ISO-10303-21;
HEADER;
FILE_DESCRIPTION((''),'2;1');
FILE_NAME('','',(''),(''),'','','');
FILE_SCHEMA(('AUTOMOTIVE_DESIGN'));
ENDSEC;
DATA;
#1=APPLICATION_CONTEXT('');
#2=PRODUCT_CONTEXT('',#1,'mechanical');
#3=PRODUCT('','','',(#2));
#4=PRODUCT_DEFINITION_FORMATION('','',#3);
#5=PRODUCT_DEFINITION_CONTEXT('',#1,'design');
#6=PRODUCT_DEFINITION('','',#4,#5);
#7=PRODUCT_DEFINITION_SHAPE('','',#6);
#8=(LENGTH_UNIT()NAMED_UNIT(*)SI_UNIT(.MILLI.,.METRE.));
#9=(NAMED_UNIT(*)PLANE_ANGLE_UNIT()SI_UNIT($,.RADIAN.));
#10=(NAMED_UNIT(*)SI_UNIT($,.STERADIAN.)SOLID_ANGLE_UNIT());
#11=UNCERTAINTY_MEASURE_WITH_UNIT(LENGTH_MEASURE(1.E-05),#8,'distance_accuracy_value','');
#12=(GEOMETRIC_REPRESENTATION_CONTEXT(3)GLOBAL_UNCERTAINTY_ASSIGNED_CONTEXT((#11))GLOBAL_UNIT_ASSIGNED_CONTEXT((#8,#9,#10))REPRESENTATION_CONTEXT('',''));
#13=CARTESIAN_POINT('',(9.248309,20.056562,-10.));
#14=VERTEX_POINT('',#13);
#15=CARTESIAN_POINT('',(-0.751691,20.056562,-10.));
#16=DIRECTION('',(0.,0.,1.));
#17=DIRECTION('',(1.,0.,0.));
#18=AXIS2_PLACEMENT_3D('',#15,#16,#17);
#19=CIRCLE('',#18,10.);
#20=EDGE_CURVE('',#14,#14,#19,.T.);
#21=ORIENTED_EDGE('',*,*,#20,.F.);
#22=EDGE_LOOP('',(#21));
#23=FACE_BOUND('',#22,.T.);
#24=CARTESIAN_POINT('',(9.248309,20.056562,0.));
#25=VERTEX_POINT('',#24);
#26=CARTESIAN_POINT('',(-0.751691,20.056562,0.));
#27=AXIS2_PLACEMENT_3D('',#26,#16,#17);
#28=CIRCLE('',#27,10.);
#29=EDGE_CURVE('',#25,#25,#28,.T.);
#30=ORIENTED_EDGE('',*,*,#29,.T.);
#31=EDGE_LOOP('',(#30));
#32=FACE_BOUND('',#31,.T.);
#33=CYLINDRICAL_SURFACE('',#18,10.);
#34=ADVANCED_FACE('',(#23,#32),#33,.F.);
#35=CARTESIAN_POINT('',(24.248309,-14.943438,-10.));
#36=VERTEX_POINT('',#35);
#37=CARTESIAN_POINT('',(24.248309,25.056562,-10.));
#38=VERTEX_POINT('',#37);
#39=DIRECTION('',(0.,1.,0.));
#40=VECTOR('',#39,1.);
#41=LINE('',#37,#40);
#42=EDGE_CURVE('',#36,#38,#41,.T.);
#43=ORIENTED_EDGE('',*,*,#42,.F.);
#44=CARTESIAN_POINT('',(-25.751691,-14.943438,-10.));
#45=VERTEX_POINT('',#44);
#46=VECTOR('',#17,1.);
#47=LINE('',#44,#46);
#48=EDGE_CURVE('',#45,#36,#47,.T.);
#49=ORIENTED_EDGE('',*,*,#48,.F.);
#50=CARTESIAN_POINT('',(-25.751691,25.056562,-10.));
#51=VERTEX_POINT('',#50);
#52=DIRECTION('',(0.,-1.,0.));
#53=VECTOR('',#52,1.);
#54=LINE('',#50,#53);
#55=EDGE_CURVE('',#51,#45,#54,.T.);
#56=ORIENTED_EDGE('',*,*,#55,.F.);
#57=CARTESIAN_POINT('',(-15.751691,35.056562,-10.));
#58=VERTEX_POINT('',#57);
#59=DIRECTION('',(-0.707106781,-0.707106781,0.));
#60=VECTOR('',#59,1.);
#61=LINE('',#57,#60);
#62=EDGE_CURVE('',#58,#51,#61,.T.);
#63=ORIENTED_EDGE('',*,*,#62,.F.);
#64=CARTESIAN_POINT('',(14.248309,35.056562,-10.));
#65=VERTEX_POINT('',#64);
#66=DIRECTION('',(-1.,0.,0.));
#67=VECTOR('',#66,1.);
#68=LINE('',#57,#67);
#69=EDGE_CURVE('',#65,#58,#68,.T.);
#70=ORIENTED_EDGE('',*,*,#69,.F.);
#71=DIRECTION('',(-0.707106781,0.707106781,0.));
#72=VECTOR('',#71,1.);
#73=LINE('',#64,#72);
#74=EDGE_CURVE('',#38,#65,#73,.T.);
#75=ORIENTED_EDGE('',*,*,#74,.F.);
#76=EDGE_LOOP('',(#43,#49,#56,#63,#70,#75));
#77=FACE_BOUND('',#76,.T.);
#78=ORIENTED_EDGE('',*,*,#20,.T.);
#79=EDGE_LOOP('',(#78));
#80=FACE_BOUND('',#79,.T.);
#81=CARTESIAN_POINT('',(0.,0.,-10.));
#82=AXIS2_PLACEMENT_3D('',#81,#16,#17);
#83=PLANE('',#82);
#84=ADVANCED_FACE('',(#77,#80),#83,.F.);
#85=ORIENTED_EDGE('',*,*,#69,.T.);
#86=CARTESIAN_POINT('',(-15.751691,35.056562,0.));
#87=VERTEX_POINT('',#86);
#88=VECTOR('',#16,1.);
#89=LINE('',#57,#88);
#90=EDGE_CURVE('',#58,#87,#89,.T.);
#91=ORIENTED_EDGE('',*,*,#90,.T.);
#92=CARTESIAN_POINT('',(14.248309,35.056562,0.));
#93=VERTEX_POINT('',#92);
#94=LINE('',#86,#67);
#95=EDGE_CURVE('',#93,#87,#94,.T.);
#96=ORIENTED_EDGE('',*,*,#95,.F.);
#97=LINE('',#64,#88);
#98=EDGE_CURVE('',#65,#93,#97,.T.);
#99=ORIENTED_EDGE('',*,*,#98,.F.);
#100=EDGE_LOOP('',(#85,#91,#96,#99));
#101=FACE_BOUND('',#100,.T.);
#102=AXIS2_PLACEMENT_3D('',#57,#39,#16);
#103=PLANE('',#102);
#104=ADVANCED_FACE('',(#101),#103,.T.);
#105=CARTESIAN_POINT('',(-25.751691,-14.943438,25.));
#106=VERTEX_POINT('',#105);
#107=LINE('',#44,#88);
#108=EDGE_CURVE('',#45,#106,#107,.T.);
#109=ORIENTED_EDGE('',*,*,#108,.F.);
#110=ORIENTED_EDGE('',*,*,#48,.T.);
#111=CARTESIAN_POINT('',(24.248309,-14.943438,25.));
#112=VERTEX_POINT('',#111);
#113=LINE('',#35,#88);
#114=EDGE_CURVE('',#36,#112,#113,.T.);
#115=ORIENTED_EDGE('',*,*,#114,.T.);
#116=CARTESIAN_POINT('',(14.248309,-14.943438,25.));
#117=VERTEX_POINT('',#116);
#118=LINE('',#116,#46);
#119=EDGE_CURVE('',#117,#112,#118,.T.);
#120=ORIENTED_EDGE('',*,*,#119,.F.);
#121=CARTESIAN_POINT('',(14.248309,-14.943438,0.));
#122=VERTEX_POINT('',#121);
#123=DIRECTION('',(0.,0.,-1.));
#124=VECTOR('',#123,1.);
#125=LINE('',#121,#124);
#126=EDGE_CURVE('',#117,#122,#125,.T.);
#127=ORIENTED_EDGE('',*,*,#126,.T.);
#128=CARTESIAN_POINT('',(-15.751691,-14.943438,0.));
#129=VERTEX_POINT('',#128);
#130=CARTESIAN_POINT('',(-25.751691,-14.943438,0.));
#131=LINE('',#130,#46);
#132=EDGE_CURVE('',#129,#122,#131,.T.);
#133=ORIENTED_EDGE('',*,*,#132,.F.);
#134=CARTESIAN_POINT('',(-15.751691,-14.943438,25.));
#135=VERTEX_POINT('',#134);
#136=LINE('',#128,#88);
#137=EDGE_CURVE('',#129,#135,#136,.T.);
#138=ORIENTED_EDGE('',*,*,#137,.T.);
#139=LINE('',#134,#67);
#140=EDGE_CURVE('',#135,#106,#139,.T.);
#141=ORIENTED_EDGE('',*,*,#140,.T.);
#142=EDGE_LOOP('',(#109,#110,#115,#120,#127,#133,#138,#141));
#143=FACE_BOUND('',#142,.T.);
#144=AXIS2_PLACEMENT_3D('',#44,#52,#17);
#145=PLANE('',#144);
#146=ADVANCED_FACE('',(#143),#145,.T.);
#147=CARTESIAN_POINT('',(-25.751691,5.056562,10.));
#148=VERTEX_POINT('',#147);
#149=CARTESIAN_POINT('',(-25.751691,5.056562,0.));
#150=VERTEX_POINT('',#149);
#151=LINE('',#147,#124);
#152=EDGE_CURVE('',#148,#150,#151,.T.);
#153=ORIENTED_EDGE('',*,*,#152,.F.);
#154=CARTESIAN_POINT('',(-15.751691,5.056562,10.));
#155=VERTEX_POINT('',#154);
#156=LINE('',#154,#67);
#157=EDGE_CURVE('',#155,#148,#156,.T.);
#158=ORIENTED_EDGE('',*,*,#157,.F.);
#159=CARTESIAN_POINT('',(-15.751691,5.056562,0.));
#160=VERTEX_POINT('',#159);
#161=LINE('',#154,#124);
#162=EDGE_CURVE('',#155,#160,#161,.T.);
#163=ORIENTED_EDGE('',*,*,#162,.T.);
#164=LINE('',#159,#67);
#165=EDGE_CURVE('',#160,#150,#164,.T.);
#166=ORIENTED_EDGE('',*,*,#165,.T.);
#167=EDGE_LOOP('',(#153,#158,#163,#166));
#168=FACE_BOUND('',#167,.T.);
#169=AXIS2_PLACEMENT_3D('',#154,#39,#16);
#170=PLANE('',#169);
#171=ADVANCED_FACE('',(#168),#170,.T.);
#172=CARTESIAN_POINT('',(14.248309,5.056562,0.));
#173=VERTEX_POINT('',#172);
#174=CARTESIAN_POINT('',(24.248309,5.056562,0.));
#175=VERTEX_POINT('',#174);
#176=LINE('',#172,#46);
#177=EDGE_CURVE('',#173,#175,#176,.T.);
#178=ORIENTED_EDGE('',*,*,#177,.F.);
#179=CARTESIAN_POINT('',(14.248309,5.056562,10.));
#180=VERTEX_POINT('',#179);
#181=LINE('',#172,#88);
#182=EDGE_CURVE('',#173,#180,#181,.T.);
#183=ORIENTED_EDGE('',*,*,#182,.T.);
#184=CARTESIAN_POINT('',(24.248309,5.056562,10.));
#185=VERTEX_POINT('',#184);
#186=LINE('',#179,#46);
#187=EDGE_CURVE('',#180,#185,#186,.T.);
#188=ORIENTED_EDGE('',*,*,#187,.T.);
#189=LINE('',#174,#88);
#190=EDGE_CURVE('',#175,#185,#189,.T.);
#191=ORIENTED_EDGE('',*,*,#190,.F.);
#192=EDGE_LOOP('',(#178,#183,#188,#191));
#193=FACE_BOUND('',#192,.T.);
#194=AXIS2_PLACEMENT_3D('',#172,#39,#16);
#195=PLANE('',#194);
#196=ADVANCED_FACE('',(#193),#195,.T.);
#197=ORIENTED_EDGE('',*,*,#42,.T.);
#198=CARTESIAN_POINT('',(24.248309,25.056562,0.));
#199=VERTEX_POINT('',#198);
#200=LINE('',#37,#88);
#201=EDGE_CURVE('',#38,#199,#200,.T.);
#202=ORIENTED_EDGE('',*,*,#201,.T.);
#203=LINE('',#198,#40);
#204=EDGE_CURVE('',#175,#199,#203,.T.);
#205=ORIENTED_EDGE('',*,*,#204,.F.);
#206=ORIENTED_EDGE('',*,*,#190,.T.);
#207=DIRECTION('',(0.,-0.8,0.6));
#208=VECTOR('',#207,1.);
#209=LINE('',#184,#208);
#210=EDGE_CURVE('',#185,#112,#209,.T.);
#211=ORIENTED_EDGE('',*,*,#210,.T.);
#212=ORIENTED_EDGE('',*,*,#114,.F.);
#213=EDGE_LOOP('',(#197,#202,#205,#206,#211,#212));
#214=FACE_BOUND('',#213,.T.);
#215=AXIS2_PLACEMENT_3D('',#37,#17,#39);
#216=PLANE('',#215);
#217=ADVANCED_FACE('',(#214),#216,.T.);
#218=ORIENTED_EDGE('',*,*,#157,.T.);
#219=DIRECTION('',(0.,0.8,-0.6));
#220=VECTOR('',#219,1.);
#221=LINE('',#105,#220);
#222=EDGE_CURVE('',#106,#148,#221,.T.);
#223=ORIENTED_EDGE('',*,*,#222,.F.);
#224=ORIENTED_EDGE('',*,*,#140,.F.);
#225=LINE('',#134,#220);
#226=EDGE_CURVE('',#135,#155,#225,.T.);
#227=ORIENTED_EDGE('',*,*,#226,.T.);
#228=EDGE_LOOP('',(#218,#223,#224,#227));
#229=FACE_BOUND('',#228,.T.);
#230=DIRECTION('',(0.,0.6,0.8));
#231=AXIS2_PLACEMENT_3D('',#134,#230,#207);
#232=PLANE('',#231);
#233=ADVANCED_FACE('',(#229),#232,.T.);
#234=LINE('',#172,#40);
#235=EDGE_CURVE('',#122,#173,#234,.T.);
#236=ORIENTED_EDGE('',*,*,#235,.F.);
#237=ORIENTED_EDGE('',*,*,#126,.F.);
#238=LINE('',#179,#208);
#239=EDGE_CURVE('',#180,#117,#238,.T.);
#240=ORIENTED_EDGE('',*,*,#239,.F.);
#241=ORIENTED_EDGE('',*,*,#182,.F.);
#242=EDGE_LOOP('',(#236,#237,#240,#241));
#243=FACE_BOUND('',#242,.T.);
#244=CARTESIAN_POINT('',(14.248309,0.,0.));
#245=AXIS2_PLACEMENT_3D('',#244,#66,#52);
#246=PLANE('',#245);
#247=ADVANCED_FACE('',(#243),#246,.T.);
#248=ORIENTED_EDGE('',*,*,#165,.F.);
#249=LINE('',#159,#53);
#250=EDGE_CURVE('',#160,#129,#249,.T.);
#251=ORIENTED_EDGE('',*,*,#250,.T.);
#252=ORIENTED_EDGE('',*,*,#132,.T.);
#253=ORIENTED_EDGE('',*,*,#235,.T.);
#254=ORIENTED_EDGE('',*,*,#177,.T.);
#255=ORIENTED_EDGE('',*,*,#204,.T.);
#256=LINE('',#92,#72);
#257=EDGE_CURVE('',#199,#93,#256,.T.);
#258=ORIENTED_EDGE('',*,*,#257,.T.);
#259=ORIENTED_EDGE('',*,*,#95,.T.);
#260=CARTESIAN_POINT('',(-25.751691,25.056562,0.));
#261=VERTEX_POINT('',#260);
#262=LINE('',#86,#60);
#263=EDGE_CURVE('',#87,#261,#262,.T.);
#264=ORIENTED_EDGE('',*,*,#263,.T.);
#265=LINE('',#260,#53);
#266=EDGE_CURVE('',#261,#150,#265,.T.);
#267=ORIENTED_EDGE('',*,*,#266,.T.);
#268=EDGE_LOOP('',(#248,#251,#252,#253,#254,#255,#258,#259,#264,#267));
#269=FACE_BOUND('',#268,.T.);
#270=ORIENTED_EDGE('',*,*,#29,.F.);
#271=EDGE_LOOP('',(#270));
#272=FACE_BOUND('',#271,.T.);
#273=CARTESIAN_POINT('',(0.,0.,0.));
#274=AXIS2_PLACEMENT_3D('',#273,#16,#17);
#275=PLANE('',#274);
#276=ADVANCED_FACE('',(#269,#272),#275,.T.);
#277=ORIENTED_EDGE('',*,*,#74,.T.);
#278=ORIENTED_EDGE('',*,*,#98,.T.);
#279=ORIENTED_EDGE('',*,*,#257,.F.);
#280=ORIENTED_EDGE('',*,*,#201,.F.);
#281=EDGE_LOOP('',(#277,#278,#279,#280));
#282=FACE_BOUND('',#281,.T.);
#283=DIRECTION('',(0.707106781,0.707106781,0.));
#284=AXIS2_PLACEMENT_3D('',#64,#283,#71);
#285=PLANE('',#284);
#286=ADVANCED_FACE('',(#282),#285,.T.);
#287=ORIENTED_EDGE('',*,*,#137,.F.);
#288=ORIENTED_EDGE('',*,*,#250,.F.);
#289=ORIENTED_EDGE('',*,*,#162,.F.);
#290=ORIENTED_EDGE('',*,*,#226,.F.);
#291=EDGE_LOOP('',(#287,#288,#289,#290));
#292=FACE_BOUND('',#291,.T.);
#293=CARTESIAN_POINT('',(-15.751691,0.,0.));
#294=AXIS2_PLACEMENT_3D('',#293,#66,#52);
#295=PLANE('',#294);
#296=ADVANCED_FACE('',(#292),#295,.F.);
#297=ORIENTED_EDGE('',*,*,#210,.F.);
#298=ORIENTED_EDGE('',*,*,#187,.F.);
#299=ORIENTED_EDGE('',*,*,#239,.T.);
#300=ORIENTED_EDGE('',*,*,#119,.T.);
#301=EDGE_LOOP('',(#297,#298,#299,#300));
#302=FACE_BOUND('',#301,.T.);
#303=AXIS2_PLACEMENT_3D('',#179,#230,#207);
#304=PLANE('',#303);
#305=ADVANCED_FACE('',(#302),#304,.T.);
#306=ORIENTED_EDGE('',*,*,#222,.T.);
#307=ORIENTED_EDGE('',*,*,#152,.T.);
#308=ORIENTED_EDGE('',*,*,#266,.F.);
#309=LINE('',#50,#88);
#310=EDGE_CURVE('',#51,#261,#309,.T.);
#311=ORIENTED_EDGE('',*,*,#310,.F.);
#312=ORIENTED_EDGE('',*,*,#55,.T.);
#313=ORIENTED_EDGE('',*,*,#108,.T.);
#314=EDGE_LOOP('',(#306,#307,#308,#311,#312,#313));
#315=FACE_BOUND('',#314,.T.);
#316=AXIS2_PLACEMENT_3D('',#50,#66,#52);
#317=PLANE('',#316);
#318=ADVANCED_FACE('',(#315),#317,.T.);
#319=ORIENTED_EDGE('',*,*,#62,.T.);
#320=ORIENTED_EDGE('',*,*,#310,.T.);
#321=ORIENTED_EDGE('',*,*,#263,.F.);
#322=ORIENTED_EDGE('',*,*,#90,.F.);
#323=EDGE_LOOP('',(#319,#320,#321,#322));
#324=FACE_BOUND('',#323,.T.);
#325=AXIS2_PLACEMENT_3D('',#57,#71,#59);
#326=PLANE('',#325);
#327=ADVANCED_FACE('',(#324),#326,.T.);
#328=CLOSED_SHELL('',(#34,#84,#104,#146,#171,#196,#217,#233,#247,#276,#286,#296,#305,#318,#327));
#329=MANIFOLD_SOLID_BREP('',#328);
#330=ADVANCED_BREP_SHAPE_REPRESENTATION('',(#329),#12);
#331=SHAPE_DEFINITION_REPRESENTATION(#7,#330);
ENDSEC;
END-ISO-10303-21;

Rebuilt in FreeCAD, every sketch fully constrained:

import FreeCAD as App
import Part
import Sketcher
Q = App.Units.Quantity

doc = App.newDocument("Part")
body = doc.addObject("PartDesign::Body", "Body")

# Sketch on XY plane
sketch1 = body.newObject("Sketcher::SketchObject", "Sketch")
sketch1.AttachmentSupport = (doc.getObject("XY_Plane"), [""])
sketch1.MapMode = "FlatFace"
sketch1.addGeometry(Part.LineSegment(App.Vector(14, 35, 0), App.Vector(-16, 35, 0)), False)
sketch1.addGeometry(Part.LineSegment(App.Vector(-16, 35, 0), App.Vector(-26, 25, 0)), False)
sketch1.addGeometry(Part.LineSegment(App.Vector(-26, 25, 0), App.Vector(-26, -15, 0)), False)
sketch1.addGeometry(Part.LineSegment(App.Vector(-26, -15, 0), App.Vector(24, -15, 0)), False)
sketch1.addGeometry(Part.LineSegment(App.Vector(24, -15, 0), App.Vector(24, 25, 0)), False)
sketch1.addGeometry(Part.LineSegment(App.Vector(24, 25, 0), App.Vector(14, 35, 0)), False)
sketch1.addConstraint(Sketcher.Constraint("Coincident", 0, 2, 1, 1))
sketch1.addConstraint(Sketcher.Constraint("Coincident", 1, 2, 2, 1))
sketch1.addConstraint(Sketcher.Constraint("Coincident", 2, 2, 3, 1))
sketch1.addConstraint(Sketcher.Constraint("Coincident", 3, 2, 4, 1))
sketch1.addConstraint(Sketcher.Constraint("Coincident", 4, 2, 5, 1))
sketch1.addConstraint(Sketcher.Constraint("Coincident", 5, 2, 0, 1))
sketch1.addConstraint(Sketcher.Constraint("Horizontal", 0))
sketch1.addConstraint(Sketcher.Constraint("Vertical", 2))
sketch1.addConstraint(Sketcher.Constraint("Horizontal", 3))
sketch1.addConstraint(Sketcher.Constraint("Vertical", 4))
sketch1.addConstraint(Sketcher.Constraint("Perpendicular", 1, 5))
sketch1.addConstraint(Sketcher.Constraint("Horizontal", 1, 2, 4, 2))
sketch1.addConstraint(Sketcher.Constraint("Equal", 1, 5))
sketch1.addConstraint(Sketcher.Constraint("DistanceX", 0, 2, 0, 1, Q("30 mm")))
sketch1.addConstraint(Sketcher.Constraint("DistanceX", 3, 1, 3, 2, Q("50 mm")))
sketch1.addConstraint(Sketcher.Constraint("DistanceY", 2, 2, 2, 1, Q("40 mm")))
sketch1.addConstraint(Sketcher.Constraint("DistanceX", 0, 2, -1, 1, Q("15.751691 mm")))
sketch1.addConstraint(Sketcher.Constraint("DistanceY", -1, 1, 0, 2, Q("35.056562 mm")))
pad1 = body.newObject("PartDesign::Pad", "Pad")
pad1.Profile = sketch1
pad1.Length = 10
pad1.Reversed = True

# Sketch on XY plane
sketch2 = body.newObject("Sketcher::SketchObject", "Sketch001")
sketch2.AttachmentSupport = (doc.getObject("XY_Plane"), [""])
sketch2.MapMode = "FlatFace"
sketch2.addGeometry(Part.Circle(App.Vector(-1, 20, 0), App.Vector(0, 0, 1), 10), False)
sketch2.addConstraint(Sketcher.Constraint("Diameter", 0, Q("20 mm")))
sketch2.addConstraint(Sketcher.Constraint("DistanceX", 0, 3, -1, 1, Q("0.751691 mm")))
sketch2.addConstraint(Sketcher.Constraint("DistanceY", -1, 1, 0, 3, Q("20.056562 mm")))
pocket1 = body.newObject("PartDesign::Pocket", "Pocket")
pocket1.Profile = sketch2
pocket1.Length = 10

# Sketch on YZ plane
sketch3 = body.newObject("Sketcher::SketchObject", "Sketch002")
sketch3.AttachmentSupport = (doc.getObject("YZ_Plane"), [""])
sketch3.MapMode = "FlatFace"
sketch3.AttachmentOffset = App.Placement(App.Vector(0, 0, 24.248309), App.Rotation())
sketch3.addGeometry(Part.LineSegment(App.Vector(-15, 25, 0), App.Vector(-15, 0, 0)), False)
sketch3.addGeometry(Part.LineSegment(App.Vector(-15, 0, 0), App.Vector(5, 0, 0)), False)
sketch3.addGeometry(Part.LineSegment(App.Vector(5, 0, 0), App.Vector(5, 10, 0)), False)
sketch3.addGeometry(Part.LineSegment(App.Vector(5, 10, 0), App.Vector(-15, 25, 0)), False)
sketch3.addConstraint(Sketcher.Constraint("Coincident", 0, 2, 1, 1))
sketch3.addConstraint(Sketcher.Constraint("Coincident", 1, 2, 2, 1))
sketch3.addConstraint(Sketcher.Constraint("Coincident", 2, 2, 3, 1))
sketch3.addConstraint(Sketcher.Constraint("Coincident", 3, 2, 0, 1))
sketch3.addConstraint(Sketcher.Constraint("Vertical", 0))
sketch3.addConstraint(Sketcher.Constraint("Horizontal", 1))
sketch3.addConstraint(Sketcher.Constraint("Vertical", 2))
sketch3.addConstraint(Sketcher.Constraint("PointOnObject", 0, 2, -1))
sketch3.addConstraint(Sketcher.Constraint("DistanceX", 1, 1, 1, 2, Q("20 mm")))
sketch3.addConstraint(Sketcher.Constraint("DistanceY", 0, 2, 0, 1, Q("25 mm")))
sketch3.addConstraint(Sketcher.Constraint("DistanceY", 2, 1, 2, 2, Q("10 mm")))
sketch3.addConstraint(Sketcher.Constraint("DistanceX", 0, 2, -1, 1, Q("14.943438 mm")))
pad2 = body.newObject("PartDesign::Pad", "Pad001")
pad2.Profile = sketch3
pad2.Length = 10
pad2.Reversed = True

# Sketch on YZ plane
sketch4 = body.newObject("Sketcher::SketchObject", "Sketch003")
sketch4.AttachmentSupport = (doc.getObject("YZ_Plane"), [""])
sketch4.MapMode = "FlatFace"
sketch4.AttachmentOffset = App.Placement(App.Vector(0, 0, -25.751691), App.Rotation())
sketch4.addGeometry(Part.LineSegment(App.Vector(-15, 0, 0), App.Vector(-15, 25, 0)), False)
sketch4.addGeometry(Part.LineSegment(App.Vector(-15, 25, 0), App.Vector(5, 10, 0)), False)
sketch4.addGeometry(Part.LineSegment(App.Vector(5, 10, 0), App.Vector(5, 0, 0)), False)
sketch4.addGeometry(Part.LineSegment(App.Vector(5, 0, 0), App.Vector(-15, 0, 0)), False)
sketch4.addConstraint(Sketcher.Constraint("Coincident", 0, 2, 1, 1))
sketch4.addConstraint(Sketcher.Constraint("Coincident", 1, 2, 2, 1))
sketch4.addConstraint(Sketcher.Constraint("Coincident", 2, 2, 3, 1))
sketch4.addConstraint(Sketcher.Constraint("Coincident", 3, 2, 0, 1))
sketch4.addConstraint(Sketcher.Constraint("Vertical", 0))
sketch4.addConstraint(Sketcher.Constraint("Vertical", 2))
sketch4.addConstraint(Sketcher.Constraint("Horizontal", 3))
sketch4.addConstraint(Sketcher.Constraint("PointOnObject", 2, 2, -1))
sketch4.addConstraint(Sketcher.Constraint("DistanceX", 3, 2, 3, 1, Q("20 mm")))
sketch4.addConstraint(Sketcher.Constraint("DistanceY", 0, 1, 0, 2, Q("25 mm")))
sketch4.addConstraint(Sketcher.Constraint("DistanceY", 2, 2, 2, 1, Q("10 mm")))
sketch4.addConstraint(Sketcher.Constraint("DistanceX", 0, 2, -1, 1, Q("14.943438 mm")))
pad3 = body.newObject("PartDesign::Pad", "Pad002")
pad3.Profile = sketch4
pad3.Length = 10

doc.recompute()
